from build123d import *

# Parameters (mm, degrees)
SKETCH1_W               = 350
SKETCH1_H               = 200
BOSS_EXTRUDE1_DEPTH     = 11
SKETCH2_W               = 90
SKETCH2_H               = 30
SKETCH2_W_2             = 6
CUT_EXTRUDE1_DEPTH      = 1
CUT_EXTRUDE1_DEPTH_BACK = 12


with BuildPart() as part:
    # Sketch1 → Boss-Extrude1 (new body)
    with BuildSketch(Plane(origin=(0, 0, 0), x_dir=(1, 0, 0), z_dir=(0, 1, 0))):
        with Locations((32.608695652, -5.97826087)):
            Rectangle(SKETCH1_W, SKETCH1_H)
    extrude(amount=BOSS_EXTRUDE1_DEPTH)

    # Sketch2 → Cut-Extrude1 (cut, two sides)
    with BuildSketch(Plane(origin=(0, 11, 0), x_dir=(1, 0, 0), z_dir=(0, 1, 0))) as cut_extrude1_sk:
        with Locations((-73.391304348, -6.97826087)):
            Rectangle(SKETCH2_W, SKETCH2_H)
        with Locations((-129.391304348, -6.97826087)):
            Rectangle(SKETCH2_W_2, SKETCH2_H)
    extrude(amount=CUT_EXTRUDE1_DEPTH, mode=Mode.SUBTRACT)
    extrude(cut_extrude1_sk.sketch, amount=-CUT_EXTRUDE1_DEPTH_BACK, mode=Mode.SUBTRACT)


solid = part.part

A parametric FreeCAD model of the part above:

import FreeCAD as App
import Part
import Sketcher

doc = App.newDocument("Part")
body = doc.addObject("PartDesign::Body", "Body")

sketch1 = body.newObject("Sketcher::SketchObject", "Sketch")
sketch1.AttachmentSupport = (doc.getObject("XZ_Plane"), [""])
sketch1.MapMode = "FlatFace"
sketch1.addGeometry([
    Part.LineSegment(App.Vector(-142.391304, -94.021739, 0), App.Vector(-142.391304, 105.978261, 0)),
    Part.LineSegment(App.Vector(-142.391304, 105.978261, 0), App.Vector(207.608696, 105.978261, 0)),
    Part.LineSegment(App.Vector(207.608696, 105.978261, 0), App.Vector(207.608696, -94.021739, 0)),
    Part.LineSegment(App.Vector(207.608696, -94.021739, 0), App.Vector(-142.391304, -94.021739, 0)),
], False)
sketch1.addConstraint([
    Sketcher.Constraint("Coincident", 0, 2, 1, 1),
    Sketcher.Constraint("Coincident", 1, 2, 2, 1),
    Sketcher.Constraint("Coincident", 2, 2, 3, 1),
    Sketcher.Constraint("Coincident", 3, 2, 0, 1),
    Sketcher.Constraint("Vertical", 0),
    Sketcher.Constraint("Horizontal", 1),
    Sketcher.Constraint("Vertical", 2),
    Sketcher.Constraint("Horizontal", 3),
    Sketcher.Constraint("DistanceX", 1, 1, 1, 2, 350.0),
    Sketcher.Constraint("DistanceY", 0, 1, 0, 2, 200.0),
    Sketcher.Constraint("DistanceY", -1, 1, 0, 2, 105.978261),
    Sketcher.Constraint("DistanceX", 0, 2, -1, 1, 142.391304),
])
pad1 = body.newObject("PartDesign::Pad", "Pad")
pad1.Profile = sketch1
pad1.Length = 11
pad1.Reversed = True

sketch2 = body.newObject("Sketcher::SketchObject", "Sketch001")
sketch2.AttachmentSupport = (doc.getObject("XZ_Plane"), [""])
sketch2.MapMode = "FlatFace"
sketch2.AttachmentOffset = App.Placement(App.Vector(0, 0, -11), App.Rotation())
sketch2.addGeometry([
    Part.LineSegment(App.Vector(-118.391304, -8.021739, 0), App.Vector(-118.391304, 21.978261, 0)),
    Part.LineSegment(App.Vector(-118.391304, 21.978261, 0), App.Vector(-28.391304, 21.978261, 0)),
    Part.LineSegment(App.Vector(-28.391304, 21.978261, 0), App.Vector(-28.391304, -8.021739, 0)),
    Part.LineSegment(App.Vector(-28.391304, -8.021739, 0), App.Vector(-118.391304, -8.021739, 0)),
    Part.LineSegment(App.Vector(-132.391304, -8.021739, 0), App.Vector(-132.391304, 21.978261, 0)),
    Part.LineSegment(App.Vector(-132.391304, 21.978261, 0), App.Vector(-126.391304, 21.978261, 0)),
    Part.LineSegment(App.Vector(-126.391304, 21.978261, 0), App.Vector(-126.391304, -8.021739, 0)),
    Part.LineSegment(App.Vector(-126.391304, -8.021739, 0), App.Vector(-132.391304, -8.021739, 0)),
], False)
sketch2.addConstraint([
    Sketcher.Constraint("Coincident", 0, 2, 1, 1),
    Sketcher.Constraint("Coincident", 1, 2, 2, 1),
    Sketcher.Constraint("Coincident", 2, 2, 3, 1),
    Sketcher.Constraint("Coincident", 3, 2, 0, 1),
    Sketcher.Constraint("Coincident", 4, 2, 5, 1),
    Sketcher.Constraint("Coincident", 5, 2, 6, 1),
    Sketcher.Constraint("Coincident", 6, 2, 7, 1),
    Sketcher.Constraint("Coincident", 7, 2, 4, 1),
    Sketcher.Constraint("Vertical", 0),
    Sketcher.Constraint("Horizontal", 1),
    Sketcher.Constraint("Vertical", 2),
    Sketcher.Constraint("Horizontal", 3),
    Sketcher.Constraint("Vertical", 4),
    Sketcher.Constraint("Horizontal", 5),
    Sketcher.Constraint("Vertical", 6),
    Sketcher.Constraint("Horizontal", 7),
    Sketcher.Constraint("Horizontal", 1, 2, 4, 2),
    Sketcher.Constraint("Horizontal", 3, 2, 6, 2),
    Sketcher.Constraint("DistanceX", 1, 1, 1, 2, 90.0),
    Sketcher.Constraint("DistanceX", 5, 1, 5, 2, 6.0),
    Sketcher.Constraint("DistanceY", 0, 1, 0, 2, 30.0),
    Sketcher.Constraint("DistanceX", 4, 2, 0, 2, 14.0),
    Sketcher.Constraint("DistanceY", -1, 1, 0, 2, 21.978261),
    Sketcher.Constraint("DistanceX", 0, 2, -1, 1, 118.391304),
])
pocket1 = body.newObject("PartDesign::Pocket", "Pocket")
pocket1.Profile = sketch2
pocket1.Type = "ThroughAll"
pocket1.Midplane = True

doc.recompute()
